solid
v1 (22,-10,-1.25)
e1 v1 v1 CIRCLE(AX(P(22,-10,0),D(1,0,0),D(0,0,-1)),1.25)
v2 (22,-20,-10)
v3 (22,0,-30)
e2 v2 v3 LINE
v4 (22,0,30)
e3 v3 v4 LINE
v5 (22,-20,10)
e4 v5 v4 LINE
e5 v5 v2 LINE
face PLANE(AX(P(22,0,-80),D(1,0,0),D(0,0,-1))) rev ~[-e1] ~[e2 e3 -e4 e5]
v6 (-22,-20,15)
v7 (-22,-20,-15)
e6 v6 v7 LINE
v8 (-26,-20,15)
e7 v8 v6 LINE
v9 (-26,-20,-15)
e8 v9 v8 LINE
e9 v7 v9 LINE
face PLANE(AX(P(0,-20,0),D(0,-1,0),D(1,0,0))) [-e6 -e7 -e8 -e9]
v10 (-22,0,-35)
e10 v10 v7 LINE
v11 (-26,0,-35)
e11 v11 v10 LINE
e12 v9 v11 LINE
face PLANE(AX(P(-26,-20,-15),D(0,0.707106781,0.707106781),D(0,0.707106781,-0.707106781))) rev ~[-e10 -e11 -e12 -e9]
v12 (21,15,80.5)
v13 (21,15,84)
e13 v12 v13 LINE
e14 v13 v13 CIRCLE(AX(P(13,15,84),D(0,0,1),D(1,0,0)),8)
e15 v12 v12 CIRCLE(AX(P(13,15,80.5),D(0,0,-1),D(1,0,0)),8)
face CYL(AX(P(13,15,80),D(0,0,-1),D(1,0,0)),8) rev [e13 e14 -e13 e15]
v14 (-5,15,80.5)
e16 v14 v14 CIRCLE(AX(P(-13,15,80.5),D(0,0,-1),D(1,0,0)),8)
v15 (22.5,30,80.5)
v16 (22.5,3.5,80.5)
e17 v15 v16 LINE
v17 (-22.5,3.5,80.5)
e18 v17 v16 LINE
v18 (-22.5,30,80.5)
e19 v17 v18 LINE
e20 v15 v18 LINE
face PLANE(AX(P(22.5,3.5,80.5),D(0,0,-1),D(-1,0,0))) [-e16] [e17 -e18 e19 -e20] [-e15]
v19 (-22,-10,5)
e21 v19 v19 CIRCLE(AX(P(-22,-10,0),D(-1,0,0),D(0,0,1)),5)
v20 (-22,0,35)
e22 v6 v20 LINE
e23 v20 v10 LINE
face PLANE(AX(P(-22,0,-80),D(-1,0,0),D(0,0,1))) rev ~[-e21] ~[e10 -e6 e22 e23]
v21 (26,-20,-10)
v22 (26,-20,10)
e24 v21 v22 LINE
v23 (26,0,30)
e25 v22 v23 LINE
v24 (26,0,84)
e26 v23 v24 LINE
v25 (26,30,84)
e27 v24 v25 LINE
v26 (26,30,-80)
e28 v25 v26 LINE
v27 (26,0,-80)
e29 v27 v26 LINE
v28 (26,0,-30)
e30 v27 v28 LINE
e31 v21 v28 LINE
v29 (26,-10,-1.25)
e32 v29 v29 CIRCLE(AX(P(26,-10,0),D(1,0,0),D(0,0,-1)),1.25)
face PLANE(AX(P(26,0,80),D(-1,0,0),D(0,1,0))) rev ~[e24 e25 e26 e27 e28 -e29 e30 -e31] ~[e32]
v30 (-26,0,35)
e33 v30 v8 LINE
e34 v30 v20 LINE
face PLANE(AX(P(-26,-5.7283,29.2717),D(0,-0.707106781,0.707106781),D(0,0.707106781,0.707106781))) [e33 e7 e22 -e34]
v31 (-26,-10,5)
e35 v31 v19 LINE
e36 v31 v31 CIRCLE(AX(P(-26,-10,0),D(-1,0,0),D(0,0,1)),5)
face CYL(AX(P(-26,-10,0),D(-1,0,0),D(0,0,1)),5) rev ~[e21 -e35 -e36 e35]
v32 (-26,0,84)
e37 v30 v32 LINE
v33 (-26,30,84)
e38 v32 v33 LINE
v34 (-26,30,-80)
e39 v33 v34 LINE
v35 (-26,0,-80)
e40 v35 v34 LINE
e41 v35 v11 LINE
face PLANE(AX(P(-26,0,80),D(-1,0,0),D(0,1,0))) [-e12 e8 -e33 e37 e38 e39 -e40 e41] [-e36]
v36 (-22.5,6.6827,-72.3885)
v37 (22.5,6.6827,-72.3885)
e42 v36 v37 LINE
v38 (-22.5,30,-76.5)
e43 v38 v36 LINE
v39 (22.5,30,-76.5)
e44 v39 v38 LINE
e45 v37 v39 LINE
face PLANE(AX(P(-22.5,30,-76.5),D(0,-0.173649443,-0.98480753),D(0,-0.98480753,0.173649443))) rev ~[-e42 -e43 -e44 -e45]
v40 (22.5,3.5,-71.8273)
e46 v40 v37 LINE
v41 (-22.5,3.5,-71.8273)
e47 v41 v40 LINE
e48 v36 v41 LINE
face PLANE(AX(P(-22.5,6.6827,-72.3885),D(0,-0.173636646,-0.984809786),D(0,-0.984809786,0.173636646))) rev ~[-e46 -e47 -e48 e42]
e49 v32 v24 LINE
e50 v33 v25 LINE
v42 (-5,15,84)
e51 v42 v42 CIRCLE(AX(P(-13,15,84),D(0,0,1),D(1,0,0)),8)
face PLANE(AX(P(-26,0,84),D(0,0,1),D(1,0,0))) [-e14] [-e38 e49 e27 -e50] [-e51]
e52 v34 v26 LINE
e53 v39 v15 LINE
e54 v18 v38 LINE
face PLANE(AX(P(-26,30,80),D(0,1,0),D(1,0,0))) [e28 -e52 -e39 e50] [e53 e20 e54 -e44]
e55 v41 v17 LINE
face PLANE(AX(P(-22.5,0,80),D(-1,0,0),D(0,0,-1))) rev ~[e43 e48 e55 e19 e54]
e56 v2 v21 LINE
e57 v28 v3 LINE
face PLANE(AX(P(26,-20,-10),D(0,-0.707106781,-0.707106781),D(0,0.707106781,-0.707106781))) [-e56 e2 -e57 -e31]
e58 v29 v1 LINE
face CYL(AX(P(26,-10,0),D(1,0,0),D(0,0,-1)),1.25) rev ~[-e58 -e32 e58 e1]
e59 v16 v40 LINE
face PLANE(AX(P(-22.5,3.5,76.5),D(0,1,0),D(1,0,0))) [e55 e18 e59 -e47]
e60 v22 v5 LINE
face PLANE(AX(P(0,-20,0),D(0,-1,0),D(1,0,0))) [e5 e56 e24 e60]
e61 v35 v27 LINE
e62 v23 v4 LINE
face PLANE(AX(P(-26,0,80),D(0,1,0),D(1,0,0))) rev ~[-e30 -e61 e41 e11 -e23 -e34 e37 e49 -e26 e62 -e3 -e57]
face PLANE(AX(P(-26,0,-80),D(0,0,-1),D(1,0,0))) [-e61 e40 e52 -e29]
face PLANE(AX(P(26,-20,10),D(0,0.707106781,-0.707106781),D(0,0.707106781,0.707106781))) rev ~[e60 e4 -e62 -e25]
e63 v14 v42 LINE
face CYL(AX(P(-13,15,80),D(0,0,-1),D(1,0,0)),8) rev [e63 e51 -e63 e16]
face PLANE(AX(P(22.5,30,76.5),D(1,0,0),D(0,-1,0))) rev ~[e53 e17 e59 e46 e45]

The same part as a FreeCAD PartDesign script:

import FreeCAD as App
import Part
import Sketcher
Q = App.Units.Quantity


def faces_at(feature, points):
    """Names of the faces that lie closest to the given points."""
    faces = feature.Shape.Faces
    near = lambda p: min(range(len(faces)), key=lambda i: faces[i].distToShape(Part.Vertex(*p))[0])
    return sorted({f"Face{near(p) + 1}" for p in points})


def add_polygon(sketch, points):
    """Adds a closed chain of lines whose ends are joined by coincident constraints."""
    first, n = sketch.GeometryCount, len(points)
    for a, b in zip(points, points[1:] + points[:1]):
        sketch.addGeometry(Part.LineSegment(App.Vector(*a, 0), App.Vector(*b, 0)), False)
    for i in range(n):
        sketch.addConstraint(Sketcher.Constraint("Coincident", first + i, 2, first + (i + 1) % n, 1))

doc = App.newDocument("Part")
params = doc.addObject("Spreadsheet::Sheet", "Params")
for row, (alias, value) in enumerate([
    ("sketch1_width", "52 mm"),
    ("sketch1_height", "160 mm"),
    ("pad1_length", "30 mm"),
    ("thickness_wall", "3.5 mm"),
    ("sketch2_diameter", "16 mm"),
    ("sketch3_diameter", "16 mm"),
    ("sketch3_width", "52 mm"),
    ("sketch3_height", "30 mm"),
    ("pad2_length", "4 mm"),
    ("sketch4_width", "4 mm"),
    ("sketch4_height", "20 mm"),
    ("pad3_length", "20 mm"),
    ("sketch5_width", "4 mm"),
    ("sketch5_height", "30 mm"),
    ("pad4_length", "20 mm"),
    ("sketch6_diameter", "10 mm"),
    ("pocket2_length", "20 mm"),
    ("sketch7_width", "20 mm"),
    ("pad5_length", "4 mm"),
    ("sketch8_width", "20 mm"),
    ("pad6_length", "4 mm"),
    ("sketch9_height", "27.5 mm"),
    ("sketch9_width", "45 mm"),
    ("pocket3_length", "4 mm"),
    ("sketch10_width", "26.5 mm"),
    ("pad7_length", "48 mm"),
    ("sketch11_width", "45 mm"),
    ("sketch11_height", "1 mm"),
    ("pad8_length", "7 mm"),
    ("sketch12_diameter", "2.5 mm"),
], start=1):
    params.set(f"A{row}", alias)
    params.set(f"B{row}", "=" + value)
    params.setAlias(f"B{row}", alias)

body = doc.addObject("PartDesign::Body", "Body")

sketch1 = doc.addObject("Sketcher::SketchObject", "Sketch")
body.addObject(sketch1)
sketch1.AttachmentSupport = (doc.XZ_Plane, [""])
sketch1.MapMode = "FlatFace"
add_polygon(sketch1, [(-26, 80), (26, 80), (26, -80), (-26, -80)])
sketch1.addConstraint([
    Sketcher.Constraint("Horizontal", 0),
    Sketcher.Constraint("Vertical", 1),
    Sketcher.Constraint("Horizontal", 2),
    Sketcher.Constraint("Vertical", 3),
    Sketcher.Constraint("Symmetric", 0, 2, 2, 2, -1, 1),
    Sketcher.Constraint("DistanceX", 0, 1, 0, 2, 52.0),
    Sketcher.Constraint("DistanceY", 1, 2, 1, 1, 160.0),
])
sketch1.setExpression("Constraints[9]", "Params.sketch1_width")
sketch1.setExpression("Constraints[10]", "Params.sketch1_height")
pad1 = doc.addObject("PartDesign::Pad", "Pad")
body.addObject(pad1)
pad1.Profile = sketch1
pad1.setExpression("Length", "Params.pad1_length")
pad1.Reversed = True
doc.recompute()

thickness = doc.addObject("PartDesign::Thickness", "Thickness")
body.addObject(thickness)
thickness.Base = (pad1, faces_at(pad1, [(8.667, 30, 26.667)]))
thickness.setExpression("Value", "Params.thickness_wall")
thickness.Reversed = True
thickness.Join = "Intersection"

sketch2 = doc.addObject("Sketcher::SketchObject", "Sketch001")
body.addObject(sketch2)
sketch2.AttachmentSupport = (doc.XY_Plane, [""])
sketch2.MapMode = "FlatFace"
sketch2.AttachmentOffset = App.Placement(App.Vector(0, 0, 80), App.Rotation())
sketch2.addGeometry([
    Part.Circle(App.Vector(-13, 15, 0), App.Vector(0, 0, 1), 8),
    Part.Circle(App.Vector(13, 15, 0), App.Vector(0, 0, 1), 8),
], False)
sketch2.addConstraint([
    Sketcher.Constraint("Equal", 0, 1),
    Sketcher.Constraint("Symmetric", 0, 3, 1, 3, -2),
    Sketcher.Constraint("Diameter", 0, 16.0),
    Sketcher.Constraint("DistanceX", 0, 3, 1, 3, 26.0),
    Sketcher.Constraint("DistanceY", -1, 1, 0, 3, 15.0),
])
sketch2.setExpression("Constraints[2]", "Params.sketch2_diameter")
pocket1 = doc.addObject("PartDesign::Pocket", "Pocket")
body.addObject(pocket1)
pocket1.Profile = sketch2
pocket1.Type = "UpToFirst"

sketch3 = doc.addObject("Sketcher::SketchObject", "Sketch002")
body.addObject(sketch3)
sketch3.AttachmentSupport = (doc.XY_Plane, [""])
sketch3.MapMode = "FlatFace"
sketch3.AttachmentOffset = App.Placement(App.Vector(0, 0, 80), App.Rotation())
add_polygon(sketch3, [(-26, 30), (-26, 0), (26, 0), (26, 30)])
sketch3.addGeometry(Part.Circle(App.Vector(-13, 15, 0), App.Vector(0, 0, 1), 8), False)
sketch3.addGeometry(Part.Circle(App.Vector(13, 15, 0), App.Vector(0, 0, 1), 8), False)
sketch3.addConstraint([
    Sketcher.Constraint("Vertical", 0),
    Sketcher.Constraint("Horizontal", 1),
    Sketcher.Constraint("Vertical", 2),
    Sketcher.Constraint("Horizontal", 3),
    Sketcher.Constraint("Equal", 4, 5),
    Sketcher.Constraint("Symmetric", 0, 2, 1, 2, -1, 1),
    Sketcher.Constraint("Symmetric", 4, 3, 5, 3, -2),
    Sketcher.Constraint("Diameter", 4, 16.0),
    Sketcher.Constraint("DistanceX", 1, 1, 1, 2, 52.0),
    Sketcher.Constraint("DistanceY", 0, 2, 0, 1, 30.0),
    Sketcher.Constraint("DistanceX", 4, 3, -1, 1, 13.0),
    Sketcher.Constraint("DistanceY", -1, 1, 4, 3, 15.0),
])
sketch3.setExpression("Constraints[11]", "Params.sketch3_diameter")
sketch3.setExpression("Constraints[12]", "Params.sketch3_width")
sketch3.setExpression("Constraints[13]", "Params.sketch3_height")
pad2 = doc.addObject("PartDesign::Pad", "Pad001")
body.addObject(pad2)
pad2.Profile = sketch3
pad2.setExpression("Length", "Params.pad2_length")

sketch4 = doc.addObject("Sketcher::SketchObject", "Sketch003")
body.addObject(sketch4)
sketch4.AttachmentSupport = (doc.XZ_Plane, [""])
sketch4.MapMode = "FlatFace"
add_polygon(sketch4, [(26, -10), (26, 10), (22, 10), (22, -10)])
sketch4.addConstraint([
    Sketcher.Constraint("Vertical", 0),
    Sketcher.Constraint("Horizontal", 1),
    Sketcher.Constraint("Vertical", 2),
    Sketcher.Constraint("Horizontal", 3),
    Sketcher.Constraint("DistanceX", 1, 2, 1, 1, 4.0),
    Sketcher.Constraint("DistanceY", 0, 1, 0, 2, 20.0),
    Sketcher.Constraint("DistanceX", -1, 1, 0, 2, 26.0),
    Sketcher.Constraint("DistanceY", -1, 1, 0, 2, 10.0),
])
sketch4.setExpression("Constraints[8]", "Params.sketch4_width")
sketch4.setExpression("Constraints[9]", "Params.sketch4_height")
pad3 = doc.addObject("PartDesign::Pad", "Pad002")
body.addObject(pad3)
pad3.Profile = sketch4
pad3.setExpression("Length", "Params.pad3_length")

sketch5 = doc.addObject("Sketcher::SketchObject", "Sketch004")
body.addObject(sketch5)
sketch5.AttachmentSupport = (doc.XZ_Plane, [""])
sketch5.MapMode = "FlatFace"
add_polygon(sketch5, [(-26, 15), (-26, -15), (-22, -15), (-22, 15)])
sketch5.addConstraint([
    Sketcher.Constraint("Vertical", 0),
    Sketcher.Constraint("Horizontal", 1),
    Sketcher.Constraint("Vertical", 2),
    Sketcher.Constraint("Horizontal", 3),
    Sketcher.Constraint("DistanceX", 1, 1, 1, 2, 4.0),
    Sketcher.Constraint("DistanceY", 0, 2, 0, 1, 30.0),
    Sketcher.Constraint("DistanceY", 0, 2, -1, 1, 15.0),
    Sketcher.Constraint("DistanceX", 0, 2, -1, 1, 26.0),
])
sketch5.setExpression("Constraints[8]", "Params.sketch5_width")
sketch5.setExpression("Constraints[9]", "Params.sketch5_height")
pad4 = doc.addObject("PartDesign::Pad", "Pad003")
body.addObject(pad4)
pad4.Profile = sketch5
pad4.setExpression("Length", "Params.pad4_length")

sketch6 = doc.addObject("Sketcher::SketchObject", "Sketch005")
body.addObject(sketch6)
sketch6.AttachmentSupport = (doc.YZ_Plane, [""])
sketch6.MapMode = "FlatFace"
sketch6.AttachmentOffset = App.Placement(App.Vector(0, 0, -26), App.Rotation())
sketch6.addGeometry(Part.Circle(App.Vector(-10, 0, 0), App.Vector(0, 0, 1), 5), False)
sketch6.addConstraint([
    Sketcher.Constraint("PointOnObject", 0, 3, -1),
    Sketcher.Constraint("Diameter", 0, 10.0),
    Sketcher.Constraint("DistanceX", 0, 3, -1, 1, 10.0),
])
sketch6.setExpression("Constraints[1]", "Params.sketch6_diameter")
pocket2 = doc.addObject("PartDesign::Pocket", "Pocket001")
body.addObject(pocket2)
pocket2.Profile = sketch6
pocket2.setExpression("Length", "Params.pocket2_length")
pocket2.Reversed = True

sketch7 = doc.addObject("Sketcher::SketchObject", "Sketch006")
body.addObject(sketch7)
sketch7.AttachmentSupport = (doc.YZ_Plane, [""])
sketch7.MapMode = "FlatFace"
sketch7.AttachmentOffset = App.Placement(App.Vector(0, 0, -26), App.Rotation())
add_polygon(sketch7, [(0, 15), (-20, 15), (0, 35)])
add_polygon(sketch7, [(0, -35), (-20, -15), (0, -15)])
sketch7.addConstraint([
    Sketcher.Constraint("Horizontal", 0),
    Sketcher.Constraint("Vertical", 2),
    Sketcher.Constraint("Horizontal", 4),
    Sketcher.Constraint("Vertical", 5),
    Sketcher.Constraint("Symmetric", 2, 2, 4, 2, -1, 1),
    Sketcher.Constraint("Symmetric", 1, 2, 5, 2, -1),
    Sketcher.Constraint("Perpendicular", 1, 3),
    Sketcher.Constraint("Vertical", 0, 2, 3, 2),
    Sketcher.Constraint("DistanceX", 0, 2, 0, 1, 20.0),
    Sketcher.Constraint("DistanceY", -1, 1, 0, 2, 15.0),
])
sketch7.setExpression("Constraints[14]", "Params.sketch7_width")
pad5 = doc.addObject("PartDesign::Pad", "Pad004")
body.addObject(pad5)
pad5.Profile = sketch7
pad5.setExpression("Length", "Params.pad5_length")

sketch8 = doc.addObject("Sketcher::SketchObject", "Sketch007")
body.addObject(sketch8)
sketch8.AttachmentSupport = (doc.YZ_Plane, [""])
sketch8.MapMode = "FlatFace"
sketch8.AttachmentOffset = App.Placement(App.Vector(0, 0, 26), App.Rotation())
add_polygon(sketch8, [(0, -10), (-20, -10), (0, -30)])
add_polygon(sketch8, [(-20, 10), (0, 10), (0, 30)])
sketch8.addConstraint([
    Sketcher.Constraint("Horizontal", 0),
    Sketcher.Constraint("Vertical", 2),
    Sketcher.Constraint("Horizontal", 3),
    Sketcher.Constraint("Vertical", 4),
    Sketcher.Constraint("Symmetric", 2, 2, 3, 2, -1, 1),
    Sketcher.Constraint("Symmetric", 1, 2, 4, 2, -1),
    Sketcher.Constraint("Perpendicular", 1, 5),
    Sketcher.Constraint("Vertical", 0, 2, 5, 2),
    Sketcher.Constraint("DistanceX", 0, 2, 0, 1, 20.0),
    Sketcher.Constraint("DistanceY", 0, 2, -1, 1, 10.0),
])
sketch8.setExpression("Constraints[14]", "Params.sketch8_width")
pad6 = doc.addObject("PartDesign::Pad", "Pad005")
body.addObject(pad6)
pad6.Profile = sketch8
pad6.setExpression("Length", "Params.pad6_length")
pad6.Reversed = True

sketch9 = doc.addObject("Sketcher::SketchObject", "Sketch008")
body.addObject(sketch9)
sketch9.AttachmentSupport = (doc.XY_Plane, [""])
sketch9.MapMode = "FlatFace"
sketch9.AttachmentOffset = App.Placement(App.Vector(0, 0, 76.5), App.Rotation())
add_polygon(sketch9, [(-22.5, 30), (22.5, 30), (22.5, 2.5), (-22.5, 2.5)])
sketch9.addConstraint([
    Sketcher.Constraint("Horizontal", 0),
    Sketcher.Constraint("Vertical", 1),
    Sketcher.Constraint("Horizontal", 2),
    Sketcher.Constraint("Vertical", 3),
    Sketcher.Constraint("DistanceY", 1, 2, 1, 1, 27.5),
    Sketcher.Constraint("DistanceX", 0, 1, 0, 2, 45.0),
    Sketcher.Constraint("DistanceY", -1, 1, 0, 2, 30.0),
    Sketcher.Constraint("DistanceX", -1, 1, 0, 2, 22.5),
])
sketch9.setExpression("Constraints[8]", "Params.sketch9_height")
sketch9.setExpression("Constraints[9]", "Params.sketch9_width")
pocket3 = doc.addObject("PartDesign::Pocket", "Pocket002")
body.addObject(pocket3)
pocket3.Profile = sketch9
pocket3.setExpression("Length", "Params.pocket3_length")
pocket3.Reversed = True

sketch10 = doc.addObject("Sketcher::SketchObject", "Sketch009")
body.addObject(sketch10)
sketch10.AttachmentSupport = (doc.YZ_Plane, [""])
sketch10.MapMode = "FlatFace"
sketch10.AttachmentOffset = App.Placement(App.Vector(0, 0, -22.5), App.Rotation())
add_polygon(sketch10, [(3.5, -76.5), (30, -76.5), (6.6827, -72.3885), (3.5, -71.8273)])
sketch10.addConstraint([
    Sketcher.Constraint("Horizontal", 0),
    Sketcher.Constraint("Vertical", 3),
    Sketcher.Constraint("Parallel", 1, 2),
    Sketcher.Constraint("Angle", 1, Q("170 deg")),
    Sketcher.Constraint("DistanceX", 0, 1, 0, 2, 26.5),
    Sketcher.Constraint("DistanceX", -1, 1, 0, 2, 30.0),
    Sketcher.Constraint("DistanceY", 0, 2, -1, 1, 76.5),
    Sketcher.Constraint("Distance", 1, 23.677),
])
sketch10.setExpression("Constraints[8]", "Params.sketch10_width")
pad7 = doc.addObject("PartDesign::Pad", "Pad006")
body.addObject(pad7)
pad7.Profile = sketch10
pad7.setExpression("Length", "Params.pad7_length")

sketch11 = doc.addObject("Sketcher::SketchObject", "Sketch010")
body.addObject(sketch11)
sketch11.AttachmentSupport = (doc.XY_Plane, [""])
sketch11.MapMode = "FlatFace"
sketch11.AttachmentOffset = App.Placement(App.Vector(0, 0, 76.5), App.Rotation())
add_polygon(sketch11, [(-22.5, 2.5), (22.5, 2.5), (22.5, 3.5), (-22.5, 3.5)])
sketch11.addConstraint([
    Sketcher.Constraint("Horizontal", 0),
    Sketcher.Constraint("Vertical", 1),
    Sketcher.Constraint("Horizontal", 2),
    Sketcher.Constraint("Vertical", 3),
    Sketcher.Constraint("DistanceX", 0, 1, 0, 2, 45.0),
    Sketcher.Constraint("DistanceY", 1, 1, 1, 2, 1.0),
    Sketcher.Constraint("DistanceX", -1, 1, 0, 2, 22.5),
    Sketcher.Constraint("DistanceY", -1, 1, 0, 2, 2.5),
])
sketch11.setExpression("Constraints[8]", "Params.sketch11_width")
sketch11.setExpression("Constraints[9]", "Params.sketch11_height")
pad8 = doc.addObject("PartDesign::Pad", "Pad007")
body.addObject(pad8)
pad8.Profile = sketch11
pad8.setExpression("Length", "Params.pad8_length")

sketch12 = doc.addObject("Sketcher::SketchObject", "Sketch011")
body.addObject(sketch12)
sketch12.AttachmentSupport = (doc.YZ_Plane, [""])
sketch12.MapMode = "FlatFace"
sketch12.AttachmentOffset = App.Placement(App.Vector(0, 0, 26), App.Rotation())
sketch12.addGeometry(Part.Circle(App.Vector(-10, 0, 0), App.Vector(0, 0, 1), 1.25), False)
sketch12.addConstraint([
    Sketcher.Constraint("PointOnObject", 0, 3, -1),
    Sketcher.Constraint("Diameter", 0, 2.5),
    Sketcher.Constraint("DistanceX", 0, 3, -1, 1, 10.0),
])
sketch12.setExpression("Constraints[1]", "Params.sketch12_diameter")
pocket4 = doc.addObject("PartDesign::Pocket", "Pocket003")
body.addObject(pocket4)
pocket4.Profile = sketch12
pocket4.Type = "UpToFirst"

doc.recompute()
